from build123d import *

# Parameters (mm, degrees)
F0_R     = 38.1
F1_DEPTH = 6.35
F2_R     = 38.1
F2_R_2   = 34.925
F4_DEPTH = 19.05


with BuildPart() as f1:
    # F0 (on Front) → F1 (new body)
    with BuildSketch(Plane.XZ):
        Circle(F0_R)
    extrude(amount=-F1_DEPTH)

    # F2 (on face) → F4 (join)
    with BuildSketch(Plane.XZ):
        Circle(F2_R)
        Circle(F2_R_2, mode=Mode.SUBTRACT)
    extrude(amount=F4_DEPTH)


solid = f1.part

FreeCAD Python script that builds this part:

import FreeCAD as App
import Part
import Sketcher

V = App.Vector
Q = App.Units.Quantity

doc = App.newDocument("Part")
body = doc.addObject("PartDesign::Body", "Body")

sketch1 = doc.addObject("Sketcher::SketchObject", "Sketch")
body.addObject(sketch1)
sketch1.AttachmentSupport = (doc.XZ_Plane, [""])
sketch1.MapMode = "FlatFace"
sketch1.addGeometry(Part.Circle(V(0, 0, 0), V(0, 0, 1), 38), False)
sketch1.addConstraint(Sketcher.Constraint("Coincident", 0, 3, -1, 1))
sketch1.addConstraint(Sketcher.Constraint("Diameter", 0, Q("3 in")))
pad1 = doc.addObject("PartDesign::Pad", "Pad")
body.addObject(pad1)
pad1.Profile = sketch1
pad1.Length = Q("0.25 in")
pad1.Reversed = True

sketch2 = doc.addObject("Sketcher::SketchObject", "Sketch001")
body.addObject(sketch2)
sketch2.AttachmentSupport = (doc.XZ_Plane, [""])
sketch2.MapMode = "FlatFace"
sketch2.addGeometry(Part.Circle(V(0, 0, 0), V(0, 0, 1), 38), False)
sketch2.addGeometry(Part.Circle(V(0, 0, 0), V(0, 0, 1), 35), False)
sketch2.addConstraint(Sketcher.Constraint("Coincident", 0, 3, -1, 1))
sketch2.addConstraint(Sketcher.Constraint("Coincident", 1, 3, -1, 1))
sketch2.addConstraint(Sketcher.Constraint("Diameter", 0, Q("3 in")))
sketch2.addConstraint(Sketcher.Constraint("Diameter", 1, Q("2.75 in")))
pad2 = doc.addObject("PartDesign::Pad", "Pad001")
body.addObject(pad2)
pad2.Profile = sketch2
pad2.Length = Q("0.75 in")

doc.recompute()
